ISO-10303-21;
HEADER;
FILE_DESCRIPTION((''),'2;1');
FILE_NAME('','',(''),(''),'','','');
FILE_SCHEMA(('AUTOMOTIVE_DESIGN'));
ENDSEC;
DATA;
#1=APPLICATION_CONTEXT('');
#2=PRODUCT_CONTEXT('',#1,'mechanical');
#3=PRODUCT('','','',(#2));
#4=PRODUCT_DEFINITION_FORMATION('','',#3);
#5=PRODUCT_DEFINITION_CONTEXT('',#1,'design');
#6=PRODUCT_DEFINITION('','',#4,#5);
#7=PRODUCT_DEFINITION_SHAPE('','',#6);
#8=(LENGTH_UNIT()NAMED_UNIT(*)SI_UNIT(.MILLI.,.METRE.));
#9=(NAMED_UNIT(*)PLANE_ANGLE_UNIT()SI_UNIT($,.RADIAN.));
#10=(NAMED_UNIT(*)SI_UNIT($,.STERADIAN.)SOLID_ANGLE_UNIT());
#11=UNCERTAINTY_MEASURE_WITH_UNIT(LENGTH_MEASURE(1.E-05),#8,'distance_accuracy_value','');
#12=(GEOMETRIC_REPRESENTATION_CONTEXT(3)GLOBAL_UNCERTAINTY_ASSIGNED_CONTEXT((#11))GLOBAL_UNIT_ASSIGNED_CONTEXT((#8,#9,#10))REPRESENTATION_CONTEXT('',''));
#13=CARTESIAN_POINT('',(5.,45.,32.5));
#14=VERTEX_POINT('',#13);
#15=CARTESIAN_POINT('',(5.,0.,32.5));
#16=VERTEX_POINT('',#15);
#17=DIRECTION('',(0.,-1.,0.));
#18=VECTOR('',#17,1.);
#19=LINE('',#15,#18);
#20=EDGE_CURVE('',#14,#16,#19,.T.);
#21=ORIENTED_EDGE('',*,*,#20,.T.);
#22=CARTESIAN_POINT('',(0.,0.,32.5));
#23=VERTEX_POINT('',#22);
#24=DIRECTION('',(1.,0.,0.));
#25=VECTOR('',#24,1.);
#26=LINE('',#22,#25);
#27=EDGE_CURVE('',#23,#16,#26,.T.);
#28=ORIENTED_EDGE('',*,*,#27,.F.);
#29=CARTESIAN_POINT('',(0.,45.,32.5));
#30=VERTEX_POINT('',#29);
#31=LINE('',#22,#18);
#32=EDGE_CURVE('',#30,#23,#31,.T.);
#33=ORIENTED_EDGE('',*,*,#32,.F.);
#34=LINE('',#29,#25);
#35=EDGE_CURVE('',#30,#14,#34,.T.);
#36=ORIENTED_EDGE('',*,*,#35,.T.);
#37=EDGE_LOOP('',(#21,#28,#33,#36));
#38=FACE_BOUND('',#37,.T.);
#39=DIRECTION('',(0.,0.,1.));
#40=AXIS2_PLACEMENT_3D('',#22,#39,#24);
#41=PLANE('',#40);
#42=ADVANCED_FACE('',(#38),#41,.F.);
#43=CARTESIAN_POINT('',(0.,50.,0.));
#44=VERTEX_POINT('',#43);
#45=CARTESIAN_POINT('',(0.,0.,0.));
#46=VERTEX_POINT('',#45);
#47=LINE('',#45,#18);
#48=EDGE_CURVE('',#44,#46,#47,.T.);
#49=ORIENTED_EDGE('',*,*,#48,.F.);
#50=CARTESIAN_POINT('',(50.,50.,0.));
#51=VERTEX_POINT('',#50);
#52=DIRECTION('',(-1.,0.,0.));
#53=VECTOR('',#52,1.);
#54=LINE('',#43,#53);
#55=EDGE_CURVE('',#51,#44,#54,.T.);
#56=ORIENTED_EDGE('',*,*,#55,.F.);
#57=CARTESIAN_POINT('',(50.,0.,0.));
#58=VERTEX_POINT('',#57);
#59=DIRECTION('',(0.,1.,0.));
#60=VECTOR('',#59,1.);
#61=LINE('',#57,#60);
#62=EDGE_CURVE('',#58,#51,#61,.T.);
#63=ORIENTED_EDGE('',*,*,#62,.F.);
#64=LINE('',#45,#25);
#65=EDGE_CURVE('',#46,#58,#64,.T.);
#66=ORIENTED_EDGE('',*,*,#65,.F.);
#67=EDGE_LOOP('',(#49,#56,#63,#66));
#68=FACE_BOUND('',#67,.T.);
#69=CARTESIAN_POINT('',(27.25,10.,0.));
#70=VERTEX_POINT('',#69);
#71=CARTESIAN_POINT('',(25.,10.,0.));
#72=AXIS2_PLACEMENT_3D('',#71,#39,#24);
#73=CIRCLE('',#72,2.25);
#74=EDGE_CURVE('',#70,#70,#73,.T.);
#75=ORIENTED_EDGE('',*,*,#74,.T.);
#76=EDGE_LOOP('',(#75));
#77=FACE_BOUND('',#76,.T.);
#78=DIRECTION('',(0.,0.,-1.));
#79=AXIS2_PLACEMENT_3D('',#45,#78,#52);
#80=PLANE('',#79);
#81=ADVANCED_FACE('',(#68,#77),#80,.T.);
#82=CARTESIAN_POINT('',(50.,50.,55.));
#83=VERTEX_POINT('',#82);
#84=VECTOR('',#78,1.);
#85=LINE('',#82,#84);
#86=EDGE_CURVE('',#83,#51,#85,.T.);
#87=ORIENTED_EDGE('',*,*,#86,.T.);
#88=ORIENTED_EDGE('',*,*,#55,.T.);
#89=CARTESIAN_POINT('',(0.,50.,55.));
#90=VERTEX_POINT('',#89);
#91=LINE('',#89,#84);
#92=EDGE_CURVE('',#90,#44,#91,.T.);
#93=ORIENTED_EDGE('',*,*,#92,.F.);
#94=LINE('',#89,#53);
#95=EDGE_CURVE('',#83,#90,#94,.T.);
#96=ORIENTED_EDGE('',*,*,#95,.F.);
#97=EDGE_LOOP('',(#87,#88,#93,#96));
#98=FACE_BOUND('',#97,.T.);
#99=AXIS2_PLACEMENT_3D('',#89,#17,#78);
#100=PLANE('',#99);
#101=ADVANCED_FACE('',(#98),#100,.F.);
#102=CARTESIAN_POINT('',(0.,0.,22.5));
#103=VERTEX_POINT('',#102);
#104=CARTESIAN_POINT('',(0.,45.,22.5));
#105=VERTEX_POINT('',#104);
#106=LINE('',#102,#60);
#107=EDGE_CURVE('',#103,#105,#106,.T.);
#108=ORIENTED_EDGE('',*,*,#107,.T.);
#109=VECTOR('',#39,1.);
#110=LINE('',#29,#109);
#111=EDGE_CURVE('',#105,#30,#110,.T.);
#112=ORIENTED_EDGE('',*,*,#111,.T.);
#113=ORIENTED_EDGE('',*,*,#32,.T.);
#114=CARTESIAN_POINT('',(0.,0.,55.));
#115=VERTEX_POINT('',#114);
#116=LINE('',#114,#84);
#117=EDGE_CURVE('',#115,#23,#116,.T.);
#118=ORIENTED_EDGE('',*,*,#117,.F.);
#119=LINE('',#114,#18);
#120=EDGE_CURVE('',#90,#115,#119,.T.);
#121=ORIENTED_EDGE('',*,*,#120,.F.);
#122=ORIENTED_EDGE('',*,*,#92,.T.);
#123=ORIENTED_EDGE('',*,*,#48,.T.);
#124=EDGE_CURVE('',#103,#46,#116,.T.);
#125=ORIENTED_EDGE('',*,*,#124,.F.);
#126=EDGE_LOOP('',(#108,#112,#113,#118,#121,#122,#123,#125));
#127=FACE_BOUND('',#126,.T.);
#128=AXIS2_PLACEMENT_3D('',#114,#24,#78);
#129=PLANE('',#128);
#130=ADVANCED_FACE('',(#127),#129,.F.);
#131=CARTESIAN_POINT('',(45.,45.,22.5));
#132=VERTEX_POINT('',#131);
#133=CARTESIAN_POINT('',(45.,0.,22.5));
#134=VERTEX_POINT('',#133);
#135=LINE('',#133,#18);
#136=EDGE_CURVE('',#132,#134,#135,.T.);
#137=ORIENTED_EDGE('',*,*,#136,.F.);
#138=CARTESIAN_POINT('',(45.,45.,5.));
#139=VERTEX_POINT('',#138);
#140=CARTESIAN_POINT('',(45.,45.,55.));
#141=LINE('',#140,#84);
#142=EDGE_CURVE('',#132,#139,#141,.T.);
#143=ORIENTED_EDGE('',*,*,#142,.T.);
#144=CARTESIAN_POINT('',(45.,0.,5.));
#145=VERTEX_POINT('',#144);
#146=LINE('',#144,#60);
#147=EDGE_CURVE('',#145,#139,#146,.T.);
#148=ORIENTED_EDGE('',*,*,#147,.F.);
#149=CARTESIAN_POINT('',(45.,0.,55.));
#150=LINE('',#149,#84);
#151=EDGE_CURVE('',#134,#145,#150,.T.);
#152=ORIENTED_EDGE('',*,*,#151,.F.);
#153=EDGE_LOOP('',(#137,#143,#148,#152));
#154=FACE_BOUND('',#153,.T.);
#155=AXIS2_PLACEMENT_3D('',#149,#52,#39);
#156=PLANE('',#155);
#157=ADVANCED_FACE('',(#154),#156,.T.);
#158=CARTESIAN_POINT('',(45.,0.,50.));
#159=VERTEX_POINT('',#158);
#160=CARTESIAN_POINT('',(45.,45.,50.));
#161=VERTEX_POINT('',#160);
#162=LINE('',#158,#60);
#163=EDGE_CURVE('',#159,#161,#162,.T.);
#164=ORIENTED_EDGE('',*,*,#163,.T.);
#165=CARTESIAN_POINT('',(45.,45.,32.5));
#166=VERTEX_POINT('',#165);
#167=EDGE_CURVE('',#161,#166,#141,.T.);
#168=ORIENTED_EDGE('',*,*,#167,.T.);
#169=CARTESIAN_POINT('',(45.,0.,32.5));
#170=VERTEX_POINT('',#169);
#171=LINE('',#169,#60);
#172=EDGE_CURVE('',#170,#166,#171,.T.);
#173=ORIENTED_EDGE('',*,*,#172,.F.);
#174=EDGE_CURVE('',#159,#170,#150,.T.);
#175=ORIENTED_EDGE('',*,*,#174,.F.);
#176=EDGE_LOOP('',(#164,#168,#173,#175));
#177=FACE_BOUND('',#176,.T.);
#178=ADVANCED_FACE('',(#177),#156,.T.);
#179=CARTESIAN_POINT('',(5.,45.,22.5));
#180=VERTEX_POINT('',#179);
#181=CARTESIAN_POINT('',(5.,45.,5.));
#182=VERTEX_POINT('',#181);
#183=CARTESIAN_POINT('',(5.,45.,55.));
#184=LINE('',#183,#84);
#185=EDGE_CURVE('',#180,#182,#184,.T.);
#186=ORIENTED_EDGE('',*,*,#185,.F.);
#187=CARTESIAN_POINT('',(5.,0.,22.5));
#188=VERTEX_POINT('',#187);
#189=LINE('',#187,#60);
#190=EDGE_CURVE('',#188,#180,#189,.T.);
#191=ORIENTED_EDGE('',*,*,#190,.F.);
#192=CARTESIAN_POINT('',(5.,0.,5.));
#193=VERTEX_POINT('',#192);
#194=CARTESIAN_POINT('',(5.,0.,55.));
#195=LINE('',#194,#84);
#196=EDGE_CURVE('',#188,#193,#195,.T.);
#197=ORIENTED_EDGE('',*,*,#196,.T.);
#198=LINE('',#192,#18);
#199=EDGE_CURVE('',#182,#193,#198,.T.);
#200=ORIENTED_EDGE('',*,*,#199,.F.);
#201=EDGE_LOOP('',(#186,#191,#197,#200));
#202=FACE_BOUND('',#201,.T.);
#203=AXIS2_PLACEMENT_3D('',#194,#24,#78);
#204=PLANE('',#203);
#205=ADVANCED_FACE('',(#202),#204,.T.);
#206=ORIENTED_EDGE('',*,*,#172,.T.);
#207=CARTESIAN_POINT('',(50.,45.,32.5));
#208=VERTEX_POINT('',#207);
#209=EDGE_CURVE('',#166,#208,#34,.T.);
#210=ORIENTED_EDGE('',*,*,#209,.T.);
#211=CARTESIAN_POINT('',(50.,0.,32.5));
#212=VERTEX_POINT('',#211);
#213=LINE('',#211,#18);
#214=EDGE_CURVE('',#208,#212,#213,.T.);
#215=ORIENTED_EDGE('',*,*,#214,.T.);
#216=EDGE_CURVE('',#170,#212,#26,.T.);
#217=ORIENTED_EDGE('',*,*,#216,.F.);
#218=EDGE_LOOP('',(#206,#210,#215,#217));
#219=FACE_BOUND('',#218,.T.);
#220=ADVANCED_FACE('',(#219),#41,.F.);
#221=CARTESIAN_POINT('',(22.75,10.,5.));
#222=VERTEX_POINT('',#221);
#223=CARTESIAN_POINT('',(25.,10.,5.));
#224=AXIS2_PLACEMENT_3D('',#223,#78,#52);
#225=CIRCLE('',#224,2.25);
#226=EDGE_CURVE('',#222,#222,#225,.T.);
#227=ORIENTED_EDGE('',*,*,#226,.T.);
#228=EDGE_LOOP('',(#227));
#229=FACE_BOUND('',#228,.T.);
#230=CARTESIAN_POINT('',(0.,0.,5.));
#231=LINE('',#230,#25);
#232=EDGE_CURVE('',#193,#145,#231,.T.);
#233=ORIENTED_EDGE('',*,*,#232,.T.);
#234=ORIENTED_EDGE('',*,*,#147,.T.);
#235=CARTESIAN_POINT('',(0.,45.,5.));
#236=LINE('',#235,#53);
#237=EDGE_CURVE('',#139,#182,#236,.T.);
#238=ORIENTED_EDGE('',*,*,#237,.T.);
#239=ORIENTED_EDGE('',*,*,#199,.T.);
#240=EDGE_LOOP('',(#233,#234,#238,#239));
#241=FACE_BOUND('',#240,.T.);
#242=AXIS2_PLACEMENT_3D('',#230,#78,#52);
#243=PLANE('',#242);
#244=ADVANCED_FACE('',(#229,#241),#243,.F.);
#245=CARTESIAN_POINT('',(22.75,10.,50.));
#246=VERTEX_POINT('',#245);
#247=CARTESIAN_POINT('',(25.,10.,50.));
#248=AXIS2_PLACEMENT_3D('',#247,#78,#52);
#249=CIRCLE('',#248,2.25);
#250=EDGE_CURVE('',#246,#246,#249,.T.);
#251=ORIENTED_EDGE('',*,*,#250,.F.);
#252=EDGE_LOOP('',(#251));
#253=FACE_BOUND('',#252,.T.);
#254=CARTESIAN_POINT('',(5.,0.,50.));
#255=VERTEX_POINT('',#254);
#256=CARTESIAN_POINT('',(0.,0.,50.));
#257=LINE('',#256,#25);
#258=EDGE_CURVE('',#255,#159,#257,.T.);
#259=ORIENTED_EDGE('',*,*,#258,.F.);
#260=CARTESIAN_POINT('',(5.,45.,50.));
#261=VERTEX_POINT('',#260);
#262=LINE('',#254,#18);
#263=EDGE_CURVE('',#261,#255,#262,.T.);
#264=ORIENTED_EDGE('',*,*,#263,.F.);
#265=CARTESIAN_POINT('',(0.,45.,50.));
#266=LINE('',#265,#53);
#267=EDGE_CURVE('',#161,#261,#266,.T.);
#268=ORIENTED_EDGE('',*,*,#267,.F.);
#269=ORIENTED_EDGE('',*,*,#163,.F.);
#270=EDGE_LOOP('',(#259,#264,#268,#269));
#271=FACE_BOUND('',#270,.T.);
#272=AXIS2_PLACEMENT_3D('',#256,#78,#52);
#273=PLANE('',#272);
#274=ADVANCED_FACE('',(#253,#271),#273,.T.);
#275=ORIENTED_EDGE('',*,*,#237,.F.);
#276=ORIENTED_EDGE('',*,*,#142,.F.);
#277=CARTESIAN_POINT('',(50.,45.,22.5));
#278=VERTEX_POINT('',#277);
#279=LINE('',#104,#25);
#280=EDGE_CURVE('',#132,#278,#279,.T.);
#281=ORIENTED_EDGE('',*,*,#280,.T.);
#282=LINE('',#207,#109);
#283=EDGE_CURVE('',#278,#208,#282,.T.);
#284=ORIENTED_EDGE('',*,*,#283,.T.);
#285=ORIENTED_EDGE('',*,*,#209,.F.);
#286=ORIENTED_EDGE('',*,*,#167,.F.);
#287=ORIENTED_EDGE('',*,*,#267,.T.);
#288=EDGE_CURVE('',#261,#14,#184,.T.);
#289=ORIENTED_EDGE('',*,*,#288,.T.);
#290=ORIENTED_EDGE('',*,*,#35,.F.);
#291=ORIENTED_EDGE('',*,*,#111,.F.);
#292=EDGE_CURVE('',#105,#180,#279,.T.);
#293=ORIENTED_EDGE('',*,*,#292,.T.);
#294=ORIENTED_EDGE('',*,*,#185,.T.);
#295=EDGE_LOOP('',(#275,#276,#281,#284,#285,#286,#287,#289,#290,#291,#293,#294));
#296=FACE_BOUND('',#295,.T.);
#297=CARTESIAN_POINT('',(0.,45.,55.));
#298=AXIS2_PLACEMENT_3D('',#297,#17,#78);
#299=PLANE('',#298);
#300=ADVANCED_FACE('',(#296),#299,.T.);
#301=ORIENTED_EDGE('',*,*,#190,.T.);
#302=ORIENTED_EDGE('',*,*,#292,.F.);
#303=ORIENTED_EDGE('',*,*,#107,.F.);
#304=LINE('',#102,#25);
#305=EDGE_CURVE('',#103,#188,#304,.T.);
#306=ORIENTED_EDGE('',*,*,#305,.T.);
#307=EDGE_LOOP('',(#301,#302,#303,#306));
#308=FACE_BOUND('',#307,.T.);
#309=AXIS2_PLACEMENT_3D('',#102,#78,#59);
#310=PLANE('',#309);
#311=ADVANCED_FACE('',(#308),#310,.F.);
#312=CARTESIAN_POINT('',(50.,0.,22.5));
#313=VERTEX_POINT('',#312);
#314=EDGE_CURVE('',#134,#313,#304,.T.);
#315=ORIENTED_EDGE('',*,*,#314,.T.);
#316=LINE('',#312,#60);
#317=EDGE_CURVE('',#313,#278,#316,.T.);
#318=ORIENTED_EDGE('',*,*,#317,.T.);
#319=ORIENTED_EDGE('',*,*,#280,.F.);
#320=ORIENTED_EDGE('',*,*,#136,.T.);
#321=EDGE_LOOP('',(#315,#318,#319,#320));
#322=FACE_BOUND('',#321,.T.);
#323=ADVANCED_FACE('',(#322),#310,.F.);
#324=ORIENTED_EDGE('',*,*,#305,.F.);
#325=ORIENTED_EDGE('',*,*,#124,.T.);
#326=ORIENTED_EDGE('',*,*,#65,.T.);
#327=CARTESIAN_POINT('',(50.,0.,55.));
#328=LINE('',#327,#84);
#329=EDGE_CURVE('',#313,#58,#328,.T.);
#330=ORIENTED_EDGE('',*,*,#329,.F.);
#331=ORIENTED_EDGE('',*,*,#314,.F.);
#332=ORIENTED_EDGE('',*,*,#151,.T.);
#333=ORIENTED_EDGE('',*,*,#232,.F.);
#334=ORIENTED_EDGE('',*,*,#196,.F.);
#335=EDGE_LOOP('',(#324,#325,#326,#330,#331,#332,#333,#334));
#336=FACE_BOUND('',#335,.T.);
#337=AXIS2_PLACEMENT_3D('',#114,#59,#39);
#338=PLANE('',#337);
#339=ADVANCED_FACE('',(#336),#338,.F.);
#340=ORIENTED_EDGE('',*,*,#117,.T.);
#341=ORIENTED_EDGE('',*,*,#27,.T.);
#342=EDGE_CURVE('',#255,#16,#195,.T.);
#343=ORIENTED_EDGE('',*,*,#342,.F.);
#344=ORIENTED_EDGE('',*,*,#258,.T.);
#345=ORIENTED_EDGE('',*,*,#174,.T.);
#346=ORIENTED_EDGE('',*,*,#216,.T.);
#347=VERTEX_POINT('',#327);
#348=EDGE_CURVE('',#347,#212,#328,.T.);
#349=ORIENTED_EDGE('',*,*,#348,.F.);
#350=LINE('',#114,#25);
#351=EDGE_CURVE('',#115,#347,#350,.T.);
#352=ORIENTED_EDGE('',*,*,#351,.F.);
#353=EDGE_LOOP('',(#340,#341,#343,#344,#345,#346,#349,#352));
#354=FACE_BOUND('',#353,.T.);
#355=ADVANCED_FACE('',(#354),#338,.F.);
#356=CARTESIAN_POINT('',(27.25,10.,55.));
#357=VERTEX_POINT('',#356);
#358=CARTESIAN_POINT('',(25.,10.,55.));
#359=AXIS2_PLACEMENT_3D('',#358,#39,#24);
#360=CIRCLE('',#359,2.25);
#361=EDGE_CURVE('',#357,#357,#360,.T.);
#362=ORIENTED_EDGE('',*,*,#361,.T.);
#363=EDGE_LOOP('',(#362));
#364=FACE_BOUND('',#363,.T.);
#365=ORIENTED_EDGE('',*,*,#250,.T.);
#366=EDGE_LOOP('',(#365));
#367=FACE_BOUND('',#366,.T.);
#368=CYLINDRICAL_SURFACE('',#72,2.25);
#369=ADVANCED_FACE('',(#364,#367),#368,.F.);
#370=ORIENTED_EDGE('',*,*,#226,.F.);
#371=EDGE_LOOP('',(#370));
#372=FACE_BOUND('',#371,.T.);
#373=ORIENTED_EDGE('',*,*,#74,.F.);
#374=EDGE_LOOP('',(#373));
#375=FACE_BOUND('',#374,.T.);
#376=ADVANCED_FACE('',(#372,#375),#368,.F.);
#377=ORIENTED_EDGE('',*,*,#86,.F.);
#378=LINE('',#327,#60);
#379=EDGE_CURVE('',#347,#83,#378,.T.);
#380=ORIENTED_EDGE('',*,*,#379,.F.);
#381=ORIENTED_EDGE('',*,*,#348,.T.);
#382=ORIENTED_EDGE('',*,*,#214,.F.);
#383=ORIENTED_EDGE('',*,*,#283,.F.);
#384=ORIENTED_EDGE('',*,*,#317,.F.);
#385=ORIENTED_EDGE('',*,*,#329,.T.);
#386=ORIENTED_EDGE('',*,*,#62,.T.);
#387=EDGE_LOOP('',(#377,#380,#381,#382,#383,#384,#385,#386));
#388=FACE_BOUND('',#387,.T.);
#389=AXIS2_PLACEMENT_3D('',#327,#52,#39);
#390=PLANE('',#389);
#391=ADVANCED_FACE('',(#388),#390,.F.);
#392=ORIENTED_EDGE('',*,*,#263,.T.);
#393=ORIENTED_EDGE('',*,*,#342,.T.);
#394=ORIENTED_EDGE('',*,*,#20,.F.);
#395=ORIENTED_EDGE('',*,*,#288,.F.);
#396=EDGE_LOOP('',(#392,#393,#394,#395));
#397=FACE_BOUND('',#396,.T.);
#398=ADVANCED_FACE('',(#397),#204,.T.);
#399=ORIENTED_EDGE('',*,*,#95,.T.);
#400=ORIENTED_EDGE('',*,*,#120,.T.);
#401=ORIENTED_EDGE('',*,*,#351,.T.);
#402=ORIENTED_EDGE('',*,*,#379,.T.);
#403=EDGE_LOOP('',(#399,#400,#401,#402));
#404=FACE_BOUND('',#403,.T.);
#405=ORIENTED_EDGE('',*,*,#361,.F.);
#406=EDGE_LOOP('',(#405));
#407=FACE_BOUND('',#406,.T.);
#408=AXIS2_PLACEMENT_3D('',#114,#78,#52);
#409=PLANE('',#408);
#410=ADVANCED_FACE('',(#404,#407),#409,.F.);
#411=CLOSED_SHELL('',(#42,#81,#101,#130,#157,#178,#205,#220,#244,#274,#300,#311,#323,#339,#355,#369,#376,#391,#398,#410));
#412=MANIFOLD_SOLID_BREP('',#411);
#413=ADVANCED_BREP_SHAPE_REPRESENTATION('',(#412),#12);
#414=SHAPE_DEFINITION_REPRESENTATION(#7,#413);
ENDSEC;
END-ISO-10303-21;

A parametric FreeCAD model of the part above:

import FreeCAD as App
import Part
import Sketcher
Q = App.Units.Quantity


def faces_at(feature, points):
    """Names of the faces that lie closest to the given points."""
    faces = feature.Shape.Faces
    near = lambda p: min(range(len(faces)), key=lambda i: faces[i].distToShape(Part.Vertex(*p))[0])
    return sorted({f"Face{near(p) + 1}" for p in points})


def add_polygon(sketch, points):
    """Adds a closed chain of lines whose ends are joined by coincident constraints."""
    first, n = sketch.GeometryCount, len(points)
    for a, b in zip(points, points[1:] + points[:1]):
        sketch.addGeometry(Part.LineSegment(App.Vector(*a, 0), App.Vector(*b, 0)), False)
    for i in range(n):
        sketch.addConstraint(Sketcher.Constraint("Coincident", first + i, 2, first + (i + 1) % n, 1))

doc = App.newDocument("Part")
body = doc.addObject("PartDesign::Body", "Body")

# Sketch on XY plane
sketch1 = body.newObject("Sketcher::SketchObject", "Sketch")
sketch1.AttachmentSupport = (doc.getObject("XY_Plane"), [""])
sketch1.MapMode = "FlatFace"
add_polygon(sketch1, [(0, 50), (0, 0), (50, 0), (50, 50)])  # lines 0-3
sketch1.addConstraint([
    Sketcher.Constraint("Vertical", 0),
    Sketcher.Constraint("Horizontal", 1),
    Sketcher.Constraint("Vertical", 2),
    Sketcher.Constraint("Horizontal", 3),
    Sketcher.Constraint("Coincident", 0, 2, -1, 1),
    Sketcher.Constraint("Equal", 3, 0),
    Sketcher.Constraint("DistanceX", 1, 1, 1, 2, Q("50 mm")),
])
pad1 = body.newObject("PartDesign::Pad", "Pad")
pad1.Profile = sketch1
pad1.Length = 55
doc.recompute()

thickness = body.newObject("PartDesign::Thickness", "Thickness")
thickness.Base = (pad1, faces_at(pad1, [(25, 0, 27.5)]))
thickness.Value = 5
thickness.Reversed = True
thickness.Join = "Intersection"

# Sketch on XY plane
sketch2 = body.newObject("Sketcher::SketchObject", "Sketch001")
sketch2.AttachmentSupport = (doc.getObject("XY_Plane"), [""])
sketch2.MapMode = "FlatFace"
sketch2.AttachmentOffset = App.Placement(App.Vector(0, 0, 55), App.Rotation())
sketch2.addGeometry(Part.Circle(App.Vector(25, 10, 0), App.Vector(0, 0, 1), 2.2), False)
sketch2.addConstraint([
    Sketcher.Constraint("Diameter", 0, Q("4.5 mm")),
    Sketcher.Constraint("DistanceX", -1, 1, 0, 3, Q("25 mm")),
    Sketcher.Constraint("DistanceY", -1, 1, 0, 3, Q("10 mm")),
])
pocket1 = body.newObject("PartDesign::Pocket", "Pocket")
pocket1.Profile = sketch2
pocket1.Type = "ThroughAll"

# Sketch on YZ plane
sketch3 = body.newObject("Sketcher::SketchObject", "Sketch002")
sketch3.AttachmentSupport = (doc.getObject("YZ_Plane"), [""])
sketch3.MapMode = "FlatFace"
sketch3.AttachmentOffset = App.Placement(App.Vector(0, 0, 50), App.Rotation())
add_polygon(sketch3, [(45, 32), (0, 32), (0, 22), (45, 22)])  # lines 0-3
sketch3.addConstraint([
    Sketcher.Constraint("Horizontal", 0),
    Sketcher.Constraint("Vertical", 1),
    Sketcher.Constraint("Horizontal", 2),
    Sketcher.Constraint("Vertical", 3),
    Sketcher.Constraint("PointOnObject", 0, 2, -2),
    Sketcher.Constraint("DistanceX", 0, 2, 0, 1, Q("45 mm")),
    Sketcher.Constraint("DistanceY", 1, 2, 1, 1, Q("10 mm")),
    Sketcher.Constraint("DistanceY", -1, 1, 0, 2, Q("32.5 mm")),
])
pocket2 = body.newObject("PartDesign::Pocket", "Pocket001")
pocket2.Profile = sketch3
pocket2.Type = "ThroughAll"

doc.recompute()
